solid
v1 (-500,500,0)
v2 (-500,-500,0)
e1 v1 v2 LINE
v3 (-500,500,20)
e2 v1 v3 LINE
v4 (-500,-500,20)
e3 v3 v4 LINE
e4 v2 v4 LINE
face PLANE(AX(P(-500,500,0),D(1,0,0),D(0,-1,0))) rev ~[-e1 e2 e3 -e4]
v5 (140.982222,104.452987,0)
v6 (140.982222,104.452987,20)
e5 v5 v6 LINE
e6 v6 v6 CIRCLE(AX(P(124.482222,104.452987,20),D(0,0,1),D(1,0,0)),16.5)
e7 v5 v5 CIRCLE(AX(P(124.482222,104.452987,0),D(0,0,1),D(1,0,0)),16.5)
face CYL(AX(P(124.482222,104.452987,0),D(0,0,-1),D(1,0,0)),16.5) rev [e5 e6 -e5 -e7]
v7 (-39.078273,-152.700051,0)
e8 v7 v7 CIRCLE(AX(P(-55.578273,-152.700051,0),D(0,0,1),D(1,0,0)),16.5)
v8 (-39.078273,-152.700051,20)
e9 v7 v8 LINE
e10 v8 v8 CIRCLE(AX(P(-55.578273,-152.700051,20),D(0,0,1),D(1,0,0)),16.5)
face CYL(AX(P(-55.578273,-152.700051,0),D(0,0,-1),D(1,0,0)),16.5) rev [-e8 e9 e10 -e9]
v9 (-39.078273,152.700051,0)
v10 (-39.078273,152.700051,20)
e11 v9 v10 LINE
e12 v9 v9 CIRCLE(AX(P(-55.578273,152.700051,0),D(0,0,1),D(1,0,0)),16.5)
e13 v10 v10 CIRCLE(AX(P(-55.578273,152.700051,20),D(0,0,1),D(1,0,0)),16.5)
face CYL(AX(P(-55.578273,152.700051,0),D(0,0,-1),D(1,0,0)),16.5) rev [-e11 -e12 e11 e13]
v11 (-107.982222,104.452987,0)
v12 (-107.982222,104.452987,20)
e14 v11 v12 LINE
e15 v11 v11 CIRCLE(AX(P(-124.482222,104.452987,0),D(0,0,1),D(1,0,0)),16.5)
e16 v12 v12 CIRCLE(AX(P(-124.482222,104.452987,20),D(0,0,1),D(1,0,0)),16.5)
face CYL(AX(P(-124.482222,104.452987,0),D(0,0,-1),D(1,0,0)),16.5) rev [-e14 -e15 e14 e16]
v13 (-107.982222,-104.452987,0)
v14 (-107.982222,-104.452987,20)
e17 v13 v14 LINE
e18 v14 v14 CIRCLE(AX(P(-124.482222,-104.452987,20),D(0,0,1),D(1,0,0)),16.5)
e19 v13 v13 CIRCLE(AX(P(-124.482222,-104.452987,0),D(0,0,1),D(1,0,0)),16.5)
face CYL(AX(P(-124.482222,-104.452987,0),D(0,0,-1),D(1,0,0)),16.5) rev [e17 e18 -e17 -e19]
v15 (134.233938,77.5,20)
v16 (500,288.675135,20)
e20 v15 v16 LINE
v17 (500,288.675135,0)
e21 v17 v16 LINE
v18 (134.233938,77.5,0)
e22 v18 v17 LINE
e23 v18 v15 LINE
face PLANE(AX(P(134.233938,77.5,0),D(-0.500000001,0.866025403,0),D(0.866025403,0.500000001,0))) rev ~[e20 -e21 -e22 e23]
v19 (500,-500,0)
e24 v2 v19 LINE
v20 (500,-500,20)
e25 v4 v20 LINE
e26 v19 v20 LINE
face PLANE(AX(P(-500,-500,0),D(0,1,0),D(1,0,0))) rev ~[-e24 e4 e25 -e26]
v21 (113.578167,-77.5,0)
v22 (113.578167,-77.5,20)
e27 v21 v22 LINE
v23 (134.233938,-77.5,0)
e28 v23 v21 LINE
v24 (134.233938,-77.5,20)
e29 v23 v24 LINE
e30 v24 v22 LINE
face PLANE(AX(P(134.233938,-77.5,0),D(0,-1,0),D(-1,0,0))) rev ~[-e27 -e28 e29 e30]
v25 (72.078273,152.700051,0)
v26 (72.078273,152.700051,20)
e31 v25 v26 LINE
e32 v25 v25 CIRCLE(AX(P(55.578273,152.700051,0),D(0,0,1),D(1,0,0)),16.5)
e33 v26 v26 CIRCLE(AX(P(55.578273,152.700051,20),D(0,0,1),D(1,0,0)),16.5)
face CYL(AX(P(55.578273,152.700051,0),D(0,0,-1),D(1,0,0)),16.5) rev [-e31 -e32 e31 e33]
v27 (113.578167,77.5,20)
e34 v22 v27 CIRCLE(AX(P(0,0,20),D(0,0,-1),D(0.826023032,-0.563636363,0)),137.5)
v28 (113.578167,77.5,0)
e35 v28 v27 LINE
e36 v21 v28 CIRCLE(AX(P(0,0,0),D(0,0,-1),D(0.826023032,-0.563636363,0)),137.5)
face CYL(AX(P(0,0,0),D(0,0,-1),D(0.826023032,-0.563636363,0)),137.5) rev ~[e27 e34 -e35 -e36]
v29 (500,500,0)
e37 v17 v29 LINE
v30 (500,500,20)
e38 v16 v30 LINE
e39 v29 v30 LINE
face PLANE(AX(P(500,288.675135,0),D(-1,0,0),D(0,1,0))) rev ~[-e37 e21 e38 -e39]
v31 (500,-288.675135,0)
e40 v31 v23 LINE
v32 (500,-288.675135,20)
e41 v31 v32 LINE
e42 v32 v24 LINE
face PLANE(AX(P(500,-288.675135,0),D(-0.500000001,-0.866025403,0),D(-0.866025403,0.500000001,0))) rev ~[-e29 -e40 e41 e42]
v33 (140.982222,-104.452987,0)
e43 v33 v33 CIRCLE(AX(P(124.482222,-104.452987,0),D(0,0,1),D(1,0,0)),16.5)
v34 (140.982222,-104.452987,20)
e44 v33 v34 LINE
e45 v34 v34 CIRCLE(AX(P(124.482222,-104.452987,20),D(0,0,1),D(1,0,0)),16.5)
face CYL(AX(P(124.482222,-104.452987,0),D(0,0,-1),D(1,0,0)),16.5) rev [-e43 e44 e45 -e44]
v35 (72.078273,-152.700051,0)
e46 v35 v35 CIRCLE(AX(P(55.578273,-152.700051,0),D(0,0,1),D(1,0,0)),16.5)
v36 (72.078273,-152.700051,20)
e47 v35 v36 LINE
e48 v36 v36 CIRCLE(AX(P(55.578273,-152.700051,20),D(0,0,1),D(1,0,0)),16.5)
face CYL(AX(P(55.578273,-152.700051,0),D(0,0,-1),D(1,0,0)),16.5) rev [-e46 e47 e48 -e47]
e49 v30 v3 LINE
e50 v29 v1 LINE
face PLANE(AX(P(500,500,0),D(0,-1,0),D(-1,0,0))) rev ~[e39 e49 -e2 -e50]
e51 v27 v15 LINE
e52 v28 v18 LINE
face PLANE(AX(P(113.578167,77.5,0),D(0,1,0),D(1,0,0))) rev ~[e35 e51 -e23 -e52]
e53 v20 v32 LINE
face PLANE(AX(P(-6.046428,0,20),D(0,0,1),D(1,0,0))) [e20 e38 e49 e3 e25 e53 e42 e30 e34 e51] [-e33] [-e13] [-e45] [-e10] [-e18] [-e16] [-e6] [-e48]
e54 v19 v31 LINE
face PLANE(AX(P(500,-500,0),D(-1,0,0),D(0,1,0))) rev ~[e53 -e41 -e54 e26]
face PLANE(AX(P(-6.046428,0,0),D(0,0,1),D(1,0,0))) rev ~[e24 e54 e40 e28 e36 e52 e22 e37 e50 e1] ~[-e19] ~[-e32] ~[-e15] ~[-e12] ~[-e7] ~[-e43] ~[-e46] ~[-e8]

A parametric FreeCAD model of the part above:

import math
import FreeCAD as App
import Part
import Sketcher
Q = App.Units.Quantity

doc = App.newDocument("Part")
body = doc.addObject("PartDesign::Body", "Body")

# Sketch on XY plane
sketch1 = body.newObject("Sketcher::SketchObject", "Sketch")
sketch1.AttachmentSupport = (doc.getObject("XY_Plane"), [""])
sketch1.MapMode = "FlatFace"
sketch1.addGeometry([
    Part.ArcOfCircle(Part.Circle(App.Vector(0, 0, 0), App.Vector(0, 0, 1), 137.5), math.radians(34.307651), math.radians(325.692349)),  # 0
    Part.LineSegment(App.Vector(113.578167, 77.5, 0), App.Vector(134.233938, 77.5, 0)),  # 1
    Part.LineSegment(App.Vector(134.233938, 77.5, 0), App.Vector(500, 288.675135, 0)),  # 2
    Part.LineSegment(App.Vector(500, 288.675135, 0), App.Vector(500, 500, 0)),  # 3
    Part.LineSegment(App.Vector(500, 500, 0), App.Vector(-500, 500, 0)),  # 4
    Part.LineSegment(App.Vector(-500, 500, 0), App.Vector(-500, -500, 0)),  # 5
    Part.LineSegment(App.Vector(-500, -500, 0), App.Vector(500, -500, 0)),  # 6
    Part.LineSegment(App.Vector(500, -500, 0), App.Vector(500, -288.675135, 0)),  # 7
    Part.LineSegment(App.Vector(500, -288.675135, 0), App.Vector(134.233938, -77.5, 0)),  # 8
    Part.LineSegment(App.Vector(134.233938, -77.5, 0), App.Vector(113.578167, -77.5, 0)),  # 9
    Part.Circle(App.Vector(-124.482222, -104.452987, 0), App.Vector(0, 0, 1), 16.5),  # 10
    Part.Circle(App.Vector(-55.578273, -152.700051, 0), App.Vector(0, 0, 1), 16.5),  # 11
    Part.Circle(App.Vector(55.578273, -152.700051, 0), App.Vector(0, 0, 1), 16.5),  # 12
    Part.Circle(App.Vector(124.482222, -104.452987, 0), App.Vector(0, 0, 1), 16.5),  # 13
    Part.Circle(App.Vector(-124.482222, 104.452987, 0), App.Vector(0, 0, 1), 16.5),  # 14
    Part.Circle(App.Vector(-55.578273, 152.700051, 0), App.Vector(0, 0, 1), 16.5),  # 15
    Part.Circle(App.Vector(55.578273, 152.700051, 0), App.Vector(0, 0, 1), 16.5),  # 16
    Part.Circle(App.Vector(124.482222, 104.452987, 0), App.Vector(0, 0, 1), 16.5),  # 17
], False)
sketch1.addConstraint([
    Sketcher.Constraint("Coincident", 0, 1, 1, 1),
    Sketcher.Constraint("Coincident", 1, 2, 2, 1),
    Sketcher.Constraint("Coincident", 2, 2, 3, 1),
    Sketcher.Constraint("Coincident", 3, 2, 4, 1),
    Sketcher.Constraint("Coincident", 4, 2, 5, 1),
    Sketcher.Constraint("Coincident", 5, 2, 6, 1),
    Sketcher.Constraint("Coincident", 6, 2, 7, 1),
    Sketcher.Constraint("Coincident", 7, 2, 8, 1),
    Sketcher.Constraint("Coincident", 8, 2, 9, 1),
    Sketcher.Constraint("Coincident", 9, 2, 0, 2),
    Sketcher.Constraint("Horizontal", 1),
    Sketcher.Constraint("Vertical", 3),
    Sketcher.Constraint("Horizontal", 4),
    Sketcher.Constraint("Vertical", 5),
    Sketcher.Constraint("Horizontal", 6),
    Sketcher.Constraint("Vertical", 7),
    Sketcher.Constraint("Horizontal", 9),
    Sketcher.Constraint("Coincident", 0, 3, -1, 1),
    Sketcher.Constraint("Equal", 10, 11),
    Sketcher.Constraint("Equal", 11, 12),
    Sketcher.Constraint("Equal", 12, 13),
    Sketcher.Constraint("Equal", 13, 14),
    Sketcher.Constraint("Equal", 14, 15),
    Sketcher.Constraint("Equal", 15, 16),
    Sketcher.Constraint("Equal", 16, 17),
    Sketcher.Constraint("Symmetric", 13, 3, 14, 3, -1, 1),
    Sketcher.Constraint("Symmetric", 12, 3, 15, 3, -1, 1),
    Sketcher.Constraint("Symmetric", 11, 3, 16, 3, -1, 1),
    Sketcher.Constraint("Symmetric", 10, 3, 17, 3, -1, 1),
    Sketcher.Constraint("Symmetric", 3, 2, 5, 2, -1, 1),
    Sketcher.Constraint("Symmetric", 11, 3, 12, 3, -2),
    Sketcher.Constraint("Symmetric", 10, 3, 13, 3, -2),
    Sketcher.Constraint("Symmetric", 2, 2, 7, 2, -1),
    Sketcher.Constraint("Symmetric", 1, 2, 8, 2, -1),
    Sketcher.Constraint("Equal", 6, 5),
    Sketcher.Constraint("Diameter", 10, Q("33 mm")),
    Sketcher.Constraint("Radius", 0, Q("137.5 mm")),
    Sketcher.Constraint("DistanceX", 4, 2, 4, 1, Q("1000 mm")),
    Sketcher.Constraint("Angle", 2, Q("30 deg")),
    Sketcher.Constraint("DistanceY", 8, 2, 1, 2, Q("155 mm")),
    Sketcher.Constraint("DistanceX", 1, 1, 1, 2, Q("20.655771 mm")),
    Sketcher.Constraint("DistanceY", 11, 3, 15, 3, Q("305.400102 mm")),
    Sketcher.Constraint("DistanceX", 10, 3, -1, 1, Q("124.482222 mm")),
    Sketcher.Constraint("DistanceX", 10, 3, 11, 3, Q("68.903949 mm")),
    Sketcher.Constraint("DistanceY", 11, 3, 14, 3, Q("257.153038 mm")),
])
pad1 = body.newObject("PartDesign::Pad", "Pad")
pad1.Profile = sketch1
pad1.Length = 20

doc.recompute()
